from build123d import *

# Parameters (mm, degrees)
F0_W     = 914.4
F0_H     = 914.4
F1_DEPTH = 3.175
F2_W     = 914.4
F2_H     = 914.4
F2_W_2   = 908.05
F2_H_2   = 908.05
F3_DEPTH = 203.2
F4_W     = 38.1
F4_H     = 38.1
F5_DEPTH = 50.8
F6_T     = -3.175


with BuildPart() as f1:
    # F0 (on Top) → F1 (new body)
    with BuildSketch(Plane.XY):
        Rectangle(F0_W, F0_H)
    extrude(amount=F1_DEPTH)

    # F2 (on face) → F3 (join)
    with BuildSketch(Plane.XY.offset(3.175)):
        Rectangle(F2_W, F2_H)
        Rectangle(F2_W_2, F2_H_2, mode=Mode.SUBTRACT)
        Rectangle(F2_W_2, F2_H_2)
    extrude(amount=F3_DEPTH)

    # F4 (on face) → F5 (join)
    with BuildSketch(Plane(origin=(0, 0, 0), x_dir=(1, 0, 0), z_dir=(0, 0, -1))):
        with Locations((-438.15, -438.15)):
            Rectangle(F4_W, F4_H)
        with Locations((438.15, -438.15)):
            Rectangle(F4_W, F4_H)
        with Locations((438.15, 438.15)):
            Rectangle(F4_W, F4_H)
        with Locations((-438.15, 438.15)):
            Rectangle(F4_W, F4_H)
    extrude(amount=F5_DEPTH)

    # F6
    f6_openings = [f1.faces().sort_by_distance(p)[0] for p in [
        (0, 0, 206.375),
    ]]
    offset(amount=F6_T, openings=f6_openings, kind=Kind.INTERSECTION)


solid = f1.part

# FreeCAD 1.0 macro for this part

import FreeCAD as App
import Part
import Sketcher
Q = App.Units.Quantity


def faces_at(feature, points):
    """Names of the faces that lie closest to the given points."""
    faces = feature.Shape.Faces
    near = lambda p: min(range(len(faces)), key=lambda i: faces[i].distToShape(Part.Vertex(*p))[0])
    return sorted({f"Face{near(p) + 1}" for p in points})

doc = App.newDocument("Part")
params = doc.addObject("Spreadsheet::Sheet", "Params")
for row, (alias, value) in enumerate([
    ("sketch1_width", "36 in"),
    ("pad1_length", "0.125 in"),
    ("sketch2_width", "36 in"),
    ("pad2_length", "8 in"),
    ("sketch3_width", "1.5 in"),
    ("pad3_length", "2 in"),
    ("thickness_wall", "0.125 in"),
], start=1):
    params.set(f"A{row}", alias)
    params.set(f"B{row}", "=" + value)
    params.setAlias(f"B{row}", alias)

body = doc.addObject("PartDesign::Body", "Body")

# Sketch on XY plane
sketch1 = doc.addObject("Sketcher::SketchObject", "Sketch")
body.addObject(sketch1)
sketch1.AttachmentSupport = (doc.XY_Plane, [""])
sketch1.MapMode = "FlatFace"
sketch1.addGeometry([
    Part.LineSegment(App.Vector(-457, 457, 0), App.Vector(-457, -457, 0)),
    Part.LineSegment(App.Vector(-457, -457, 0), App.Vector(457, -457, 0)),
    Part.LineSegment(App.Vector(457, -457, 0), App.Vector(457, 457, 0)),
    Part.LineSegment(App.Vector(457, 457, 0), App.Vector(-457, 457, 0)),
], False)
sketch1.addConstraint([
    Sketcher.Constraint("Coincident", 0, 2, 1, 1),
    Sketcher.Constraint("Coincident", 1, 2, 2, 1),
    Sketcher.Constraint("Coincident", 2, 2, 3, 1),
    Sketcher.Constraint("Coincident", 3, 2, 0, 1),
    Sketcher.Constraint("Vertical", 0),
    Sketcher.Constraint("Horizontal", 1),
    Sketcher.Constraint("Vertical", 2),
    Sketcher.Constraint("Horizontal", 3),
    Sketcher.Constraint("Symmetric", 0, 2, 2, 2, -1, 1),
    Sketcher.Constraint("Equal", 3, 0),
    Sketcher.Constraint("DistanceX", 1, 1, 1, 2, Q("36 in")),
])
sketch1.setExpression("Constraints[10]", "Params.sketch1_width")
pad1 = doc.addObject("PartDesign::Pad", "Pad")
body.addObject(pad1)
pad1.Profile = sketch1
pad1.setExpression("Length", "Params.pad1_length")

# Sketch on XY plane
sketch2 = doc.addObject("Sketcher::SketchObject", "Sketch001")
body.addObject(sketch2)
sketch2.AttachmentSupport = (doc.XY_Plane, [""])
sketch2.MapMode = "FlatFace"
sketch2.AttachmentOffset = App.Placement(App.Vector(0, 0, 0.125 * 25.4), App.Rotation())
sketch2.addGeometry([
    Part.LineSegment(App.Vector(-457, 457, 0), App.Vector(-457, -457, 0)),
    Part.LineSegment(App.Vector(-457, -457, 0), App.Vector(457, -457, 0)),
    Part.LineSegment(App.Vector(457, -457, 0), App.Vector(457, 457, 0)),
    Part.LineSegment(App.Vector(457, 457, 0), App.Vector(-457, 457, 0)),
], False)
sketch2.addConstraint([
    Sketcher.Constraint("Coincident", 0, 2, 1, 1),
    Sketcher.Constraint("Coincident", 1, 2, 2, 1),
    Sketcher.Constraint("Coincident", 2, 2, 3, 1),
    Sketcher.Constraint("Coincident", 3, 2, 0, 1),
    Sketcher.Constraint("Vertical", 0),
    Sketcher.Constraint("Horizontal", 1),
    Sketcher.Constraint("Vertical", 2),
    Sketcher.Constraint("Horizontal", 3),
    Sketcher.Constraint("Symmetric", 0, 2, 2, 2, -1, 1),
    Sketcher.Constraint("Equal", 3, 0),
    Sketcher.Constraint("DistanceX", 1, 1, 1, 2, Q("36 in")),
])
sketch2.setExpression("Constraints[10]", "Params.sketch2_width")
pad2 = doc.addObject("PartDesign::Pad", "Pad001")
body.addObject(pad2)
pad2.Profile = sketch2
pad2.setExpression("Length", "Params.pad2_length")

# Sketch on XY plane
sketch3 = doc.addObject("Sketcher::SketchObject", "Sketch002")
body.addObject(sketch3)
sketch3.AttachmentSupport = (doc.XY_Plane, [""])
sketch3.MapMode = "FlatFace"
sketch3.addGeometry([
    Part.LineSegment(App.Vector(-457, 419, 0), App.Vector(-457, 457, 0)),  # 0
    Part.LineSegment(App.Vector(-457, 457, 0), App.Vector(-419, 457, 0)),  # 1
    Part.LineSegment(App.Vector(-419, 457, 0), App.Vector(-419, 419, 0)),  # 2
    Part.LineSegment(App.Vector(-419, 419, 0), App.Vector(-457, 419, 0)),  # 3
    Part.LineSegment(App.Vector(419, 419, 0), App.Vector(419, 457, 0)),  # 4
    Part.LineSegment(App.Vector(419, 457, 0), App.Vector(457, 457, 0)),  # 5
    Part.LineSegment(App.Vector(457, 457, 0), App.Vector(457, 419, 0)),  # 6
    Part.LineSegment(App.Vector(457, 419, 0), App.Vector(419, 419, 0)),  # 7
    Part.LineSegment(App.Vector(419, -457, 0), App.Vector(419, -419, 0)),  # 8
    Part.LineSegment(App.Vector(419, -419, 0), App.Vector(457, -419, 0)),  # 9
    Part.LineSegment(App.Vector(457, -419, 0), App.Vector(457, -457, 0)),  # 10
    Part.LineSegment(App.Vector(457, -457, 0), App.Vector(419, -457, 0)),  # 11
    Part.LineSegment(App.Vector(-457, -457, 0), App.Vector(-457, -419, 0)),  # 12
    Part.LineSegment(App.Vector(-457, -419, 0), App.Vector(-419, -419, 0)),  # 13
    Part.LineSegment(App.Vector(-419, -419, 0), App.Vector(-419, -457, 0)),  # 14
    Part.LineSegment(App.Vector(-419, -457, 0), App.Vector(-457, -457, 0)),  # 15
], False)
sketch3.addConstraint([
    Sketcher.Constraint("Coincident", 0, 2, 1, 1),
    Sketcher.Constraint("Coincident", 1, 2, 2, 1),
    Sketcher.Constraint("Coincident", 2, 2, 3, 1),
    Sketcher.Constraint("Coincident", 3, 2, 0, 1),
    Sketcher.Constraint("Coincident", 4, 2, 5, 1),
    Sketcher.Constraint("Coincident", 5, 2, 6, 1),
    Sketcher.Constraint("Coincident", 6, 2, 7, 1),
    Sketcher.Constraint("Coincident", 7, 2, 4, 1),
    Sketcher.Constraint("Coincident", 8, 2, 9, 1),
    Sketcher.Constraint("Coincident", 9, 2, 10, 1),
    Sketcher.Constraint("Coincident", 10, 2, 11, 1),
    Sketcher.Constraint("Coincident", 11, 2, 8, 1),
    Sketcher.Constraint("Coincident", 12, 2, 13, 1),
    Sketcher.Constraint("Coincident", 13, 2, 14, 1),
    Sketcher.Constraint("Coincident", 14, 2, 15, 1),
    Sketcher.Constraint("Coincident", 15, 2, 12, 1),
    Sketcher.Constraint("Vertical", 0),
    Sketcher.Constraint("Horizontal", 1),
    Sketcher.Constraint("Vertical", 2),
    Sketcher.Constraint("Horizontal", 3),
    Sketcher.Constraint("Vertical", 4),
    Sketcher.Constraint("Horizontal", 5),
    Sketcher.Constraint("Vertical", 6),
    Sketcher.Constraint("Horizontal", 7),
    Sketcher.Constraint("Vertical", 8),
    Sketcher.Constraint("Horizontal", 9),
    Sketcher.Constraint("Vertical", 10),
    Sketcher.Constraint("Horizontal", 11),
    Sketcher.Constraint("Vertical", 12),
    Sketcher.Constraint("Horizontal", 13),
    Sketcher.Constraint("Vertical", 14),
    Sketcher.Constraint("Horizontal", 15),
    Sketcher.Constraint("Symmetric", 2, 2, 8, 2, -1, 1),
    Sketcher.Constraint("Symmetric", 0, 2, 10, 2, -1, 1),
    Sketcher.Constraint("Symmetric", 6, 2, 12, 2, -1, 1),
    Sketcher.Constraint("Symmetric", 4, 2, 14, 2, -1, 1),
    Sketcher.Constraint("Symmetric", 1, 2, 4, 2, -2),
    Sketcher.Constraint("Symmetric", 3, 2, 6, 2, -2),
    Sketcher.Constraint("Equal", 15, 0),
    Sketcher.Constraint("DistanceX", 1, 1, 1, 2, Q("1.5 in")),
    Sketcher.Constraint("DistanceX", 0, 2, -1, 1, Q("18 in")),
    Sketcher.Constraint("DistanceY", -1, 1, 0, 2, Q("18 in")),
])
sketch3.setExpression("Constraints[39]", "Params.sketch3_width")
pad3 = doc.addObject("PartDesign::Pad", "Pad002")
body.addObject(pad3)
pad3.Profile = sketch3
pad3.setExpression("Length", "Params.pad3_length")
pad3.Reversed = True
doc.recompute()

thickness = doc.addObject("PartDesign::Thickness", "Thickness")
body.addObject(thickness)
thickness.Base = (pad3, faces_at(pad3, [(0, 0, 206.375)]))
thickness.setExpression("Value", "Params.thickness_wall")
thickness.Reversed = True
thickness.Join = "Intersection"

doc.recompute()
